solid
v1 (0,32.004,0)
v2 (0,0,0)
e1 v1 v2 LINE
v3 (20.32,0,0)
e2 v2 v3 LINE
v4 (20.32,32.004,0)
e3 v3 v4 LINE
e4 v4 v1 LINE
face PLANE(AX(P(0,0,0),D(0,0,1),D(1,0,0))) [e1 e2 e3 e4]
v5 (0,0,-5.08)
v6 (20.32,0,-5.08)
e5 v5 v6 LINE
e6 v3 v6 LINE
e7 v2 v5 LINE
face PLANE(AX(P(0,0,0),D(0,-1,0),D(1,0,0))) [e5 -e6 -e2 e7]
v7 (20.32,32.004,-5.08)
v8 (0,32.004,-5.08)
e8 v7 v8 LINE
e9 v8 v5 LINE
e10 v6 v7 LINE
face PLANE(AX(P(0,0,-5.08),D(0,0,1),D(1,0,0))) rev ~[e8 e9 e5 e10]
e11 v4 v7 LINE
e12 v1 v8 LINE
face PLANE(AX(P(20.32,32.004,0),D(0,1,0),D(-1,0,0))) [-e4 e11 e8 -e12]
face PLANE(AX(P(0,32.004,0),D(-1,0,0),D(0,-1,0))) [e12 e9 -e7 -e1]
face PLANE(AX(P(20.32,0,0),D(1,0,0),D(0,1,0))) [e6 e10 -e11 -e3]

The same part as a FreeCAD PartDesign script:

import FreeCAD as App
import Part
import Sketcher
Q = App.Units.Quantity

doc = App.newDocument("Part")
body = doc.addObject("PartDesign::Body", "Body")

# Sketch on XY plane
sketch1 = body.newObject("Sketcher::SketchObject", "Sketch")
sketch1.AttachmentSupport = (doc.getObject("XY_Plane"), [""])
sketch1.MapMode = "FlatFace"
sketch1.addGeometry(Part.LineSegment(App.Vector(0, 32, 0), App.Vector(0, 0, 0)), False)
sketch1.addGeometry(Part.LineSegment(App.Vector(0, 0, 0), App.Vector(20, 0, 0)), False)
sketch1.addGeometry(Part.LineSegment(App.Vector(20, 0, 0), App.Vector(20, 32, 0)), False)
sketch1.addGeometry(Part.LineSegment(App.Vector(20, 32, 0), App.Vector(0, 32, 0)), False)
sketch1.addConstraint(Sketcher.Constraint("Coincident", 0, 2, 1, 1))
sketch1.addConstraint(Sketcher.Constraint("Coincident", 1, 2, 2, 1))
sketch1.addConstraint(Sketcher.Constraint("Coincident", 2, 2, 3, 1))
sketch1.addConstraint(Sketcher.Constraint("Coincident", 3, 2, 0, 1))
sketch1.addConstraint(Sketcher.Constraint("Vertical", 0))
sketch1.addConstraint(Sketcher.Constraint("Horizontal", 1))
sketch1.addConstraint(Sketcher.Constraint("Vertical", 2))
sketch1.addConstraint(Sketcher.Constraint("Horizontal", 3))
sketch1.addConstraint(Sketcher.Constraint("Coincident", 0, 2, -1, 1))
sketch1.addConstraint(Sketcher.Constraint("DistanceX", 1, 1, 1, 2, Q("0.8 in")))
sketch1.addConstraint(Sketcher.Constraint("DistanceY", 0, 2, 0, 1, Q("1.26 in")))
pad1 = body.newObject("PartDesign::Pad", "Pad")
pad1.Profile = sketch1
pad1.Length = Q("0.2 in")
pad1.Reversed = True

doc.recompute()
